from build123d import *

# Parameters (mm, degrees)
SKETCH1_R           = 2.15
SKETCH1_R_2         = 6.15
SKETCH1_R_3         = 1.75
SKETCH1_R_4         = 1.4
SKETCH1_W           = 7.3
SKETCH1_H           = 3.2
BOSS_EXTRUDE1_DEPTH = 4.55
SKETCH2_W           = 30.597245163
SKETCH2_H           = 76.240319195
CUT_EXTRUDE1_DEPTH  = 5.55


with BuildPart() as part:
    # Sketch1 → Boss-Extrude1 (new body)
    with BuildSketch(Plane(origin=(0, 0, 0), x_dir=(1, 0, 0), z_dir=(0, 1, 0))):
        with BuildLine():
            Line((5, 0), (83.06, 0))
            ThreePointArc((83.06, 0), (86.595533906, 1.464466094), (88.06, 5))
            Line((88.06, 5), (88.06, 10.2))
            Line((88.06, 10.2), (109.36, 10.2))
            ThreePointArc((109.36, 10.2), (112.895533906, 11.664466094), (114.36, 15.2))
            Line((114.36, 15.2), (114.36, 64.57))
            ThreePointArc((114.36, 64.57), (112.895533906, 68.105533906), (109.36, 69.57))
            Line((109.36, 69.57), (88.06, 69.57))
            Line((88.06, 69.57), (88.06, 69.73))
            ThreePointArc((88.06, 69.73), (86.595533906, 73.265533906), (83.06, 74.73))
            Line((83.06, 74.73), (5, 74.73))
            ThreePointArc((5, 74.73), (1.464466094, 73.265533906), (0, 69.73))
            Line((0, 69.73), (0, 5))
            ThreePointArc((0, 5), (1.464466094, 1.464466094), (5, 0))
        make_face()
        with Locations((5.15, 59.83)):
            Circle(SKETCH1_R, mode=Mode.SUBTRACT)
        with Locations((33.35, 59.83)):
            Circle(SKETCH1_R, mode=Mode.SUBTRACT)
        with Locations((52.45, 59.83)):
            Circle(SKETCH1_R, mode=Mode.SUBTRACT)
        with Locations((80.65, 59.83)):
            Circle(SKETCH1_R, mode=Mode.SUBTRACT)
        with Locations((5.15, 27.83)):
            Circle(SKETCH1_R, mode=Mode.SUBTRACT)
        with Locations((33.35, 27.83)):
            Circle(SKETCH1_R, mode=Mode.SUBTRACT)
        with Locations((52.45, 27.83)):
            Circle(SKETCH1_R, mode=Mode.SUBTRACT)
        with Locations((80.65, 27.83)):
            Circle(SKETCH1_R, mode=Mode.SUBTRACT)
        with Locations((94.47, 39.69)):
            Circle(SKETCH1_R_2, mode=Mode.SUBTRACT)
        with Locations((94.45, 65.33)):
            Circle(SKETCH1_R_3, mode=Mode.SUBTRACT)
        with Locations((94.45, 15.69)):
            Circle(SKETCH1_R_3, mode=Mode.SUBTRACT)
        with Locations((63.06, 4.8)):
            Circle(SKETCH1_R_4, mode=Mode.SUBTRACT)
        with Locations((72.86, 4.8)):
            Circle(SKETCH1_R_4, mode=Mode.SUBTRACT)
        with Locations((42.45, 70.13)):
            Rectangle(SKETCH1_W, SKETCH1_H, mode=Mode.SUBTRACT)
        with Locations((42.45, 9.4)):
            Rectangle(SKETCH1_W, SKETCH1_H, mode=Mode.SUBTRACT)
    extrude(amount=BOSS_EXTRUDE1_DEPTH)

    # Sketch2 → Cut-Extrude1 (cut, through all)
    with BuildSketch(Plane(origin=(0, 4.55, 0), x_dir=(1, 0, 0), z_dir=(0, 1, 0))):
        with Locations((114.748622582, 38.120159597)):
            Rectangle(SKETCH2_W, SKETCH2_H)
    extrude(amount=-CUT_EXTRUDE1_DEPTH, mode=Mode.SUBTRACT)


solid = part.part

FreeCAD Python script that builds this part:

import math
import FreeCAD as App
import Part
import Sketcher

V = App.Vector

doc = App.newDocument("Part")
body = doc.addObject("PartDesign::Body", "Body")

# Sketch on XZ plane
sketch1 = body.newObject("Sketcher::SketchObject", "Sketch")
sketch1.AttachmentSupport = (doc.getObject("XZ_Plane"), [""])
sketch1.MapMode = "FlatFace"
sketch1.addGeometry([
    Part.LineSegment(V(5, 0, 0), V(83.06, 0, 0)),  # 0
    Part.ArcOfCircle(Part.Circle(V(83.06, -5, 0), V(0, 0, 1), 5), math.radians(0), math.radians(90)),  # 1
    Part.LineSegment(V(88.06, -5, 0), V(88.06, -10.2, 0)),  # 2
    Part.LineSegment(V(88.06, -10.2, 0), V(109.36, -10.2, 0)),  # 3
    Part.ArcOfCircle(Part.Circle(V(109.36, -15.2, 0), V(0, 0, 1), 5), math.radians(0), math.radians(90)),  # 4
    Part.LineSegment(V(114.36, -15.2, 0), V(114.36, -64.57, 0)),  # 5
    Part.ArcOfCircle(Part.Circle(V(109.36, -64.57, 0), V(0, 0, 1), 5), math.radians(-90), math.radians(0)),  # 6
    Part.LineSegment(V(109.36, -69.57, 0), V(88.06, -69.57, 0)),  # 7
    Part.LineSegment(V(88.06, -69.57, 0), V(88.06, -69.73, 0)),  # 8
    Part.ArcOfCircle(Part.Circle(V(83.06, -69.73, 0), V(0, 0, 1), 5), math.radians(-90), math.radians(0)),  # 9
    Part.LineSegment(V(83.06, -74.73, 0), V(5, -74.73, 0)),  # 10
    Part.ArcOfCircle(Part.Circle(V(5, -69.73, 0), V(0, 0, 1), 5), math.radians(180), math.radians(270)),  # 11
    Part.LineSegment(V(0, -69.73, 0), V(0, -5, 0)),  # 12
    Part.ArcOfCircle(Part.Circle(V(5, -5, 0), V(0, 0, 1), 5), math.radians(90), math.radians(180)),  # 13
    Part.LineSegment(V(46.1, -7.8, 0), V(38.8, -7.8, 0)),  # 14
    Part.LineSegment(V(38.8, -7.8, 0), V(38.8, -11, 0)),  # 15
    Part.LineSegment(V(38.8, -11, 0), V(46.1, -11, 0)),  # 16
    Part.LineSegment(V(46.1, -11, 0), V(46.1, -7.8, 0)),  # 17
    Part.Circle(V(5.15, -27.83, 0), V(0, 0, 1), 2.15),  # 18
    Part.Circle(V(33.35, -27.83, 0), V(0, 0, 1), 2.15),  # 19
    Part.Circle(V(63.06, -4.8, 0), V(0, 0, 1), 1.4),  # 20
    Part.Circle(V(72.86, -4.8, 0), V(0, 0, 1), 1.4),  # 21
    Part.Circle(V(94.45, -15.69, 0), V(0, 0, 1), 1.75),  # 22
    Part.Circle(V(52.45, -27.83, 0), V(0, 0, 1), 2.15),  # 23
    Part.Circle(V(80.65, -27.83, 0), V(0, 0, 1), 2.15),  # 24
    Part.Circle(V(5.15, -59.83, 0), V(0, 0, 1), 2.15),  # 25
    Part.Circle(V(33.35, -59.83, 0), V(0, 0, 1), 2.15),  # 26
    Part.LineSegment(V(46.1, -68.53, 0), V(38.8, -68.53, 0)),  # 27
    Part.LineSegment(V(38.8, -68.53, 0), V(38.8, -71.73, 0)),  # 28
    Part.LineSegment(V(38.8, -71.73, 0), V(46.1, -71.73, 0)),  # 29
    Part.LineSegment(V(46.1, -71.73, 0), V(46.1, -68.53, 0)),  # 30
    Part.Circle(V(94.47, -39.69, 0), V(0, 0, 1), 6.15),  # 31
    Part.Circle(V(52.45, -59.83, 0), V(0, 0, 1), 2.15),  # 32
    Part.Circle(V(80.65, -59.83, 0), V(0, 0, 1), 2.15),  # 33
    Part.Circle(V(94.45, -65.33, 0), V(0, 0, 1), 1.75),  # 34
], False)
sketch1.addConstraint([
    Sketcher.Constraint("Tangent", 0, 2, 1, 2),
    Sketcher.Constraint("Tangent", 1, 1, 2, 1),
    Sketcher.Constraint("Coincident", 2, 2, 3, 1),
    Sketcher.Constraint("Tangent", 3, 2, 4, 2),
    Sketcher.Constraint("Tangent", 4, 1, 5, 1),
    Sketcher.Constraint("Tangent", 5, 2, 6, 2),
    Sketcher.Constraint("Tangent", 6, 1, 7, 1),
    Sketcher.Constraint("Coincident", 7, 2, 8, 1),
    Sketcher.Constraint("Tangent", 8, 2, 9, 2),
    Sketcher.Constraint("Tangent", 9, 1, 10, 1),
    Sketcher.Constraint("Tangent", 10, 2, 11, 2),
    Sketcher.Constraint("Tangent", 11, 1, 12, 1),
    Sketcher.Constraint("Tangent", 12, 2, 13, 2),
    Sketcher.Constraint("Tangent", 13, 1, 0, 1),
    Sketcher.Constraint("Coincident", 14, 2, 15, 1),
    Sketcher.Constraint("Coincident", 15, 2, 16, 1),
    Sketcher.Constraint("Coincident", 16, 2, 17, 1),
    Sketcher.Constraint("Coincident", 17, 2, 14, 1),
    Sketcher.Constraint("Coincident", 27, 2, 28, 1),
    Sketcher.Constraint("Coincident", 28, 2, 29, 1),
    Sketcher.Constraint("Coincident", 29, 2, 30, 1),
    Sketcher.Constraint("Coincident", 30, 2, 27, 1),
    Sketcher.Constraint("Horizontal", 0),
    Sketcher.Constraint("Vertical", 2),
    Sketcher.Constraint("Horizontal", 3),
    Sketcher.Constraint("Vertical", 5),
    Sketcher.Constraint("Horizontal", 7),
    Sketcher.Constraint("Vertical", 8),
    Sketcher.Constraint("Horizontal", 10),
    Sketcher.Constraint("Vertical", 12),
    Sketcher.Constraint("Horizontal", 14),
    Sketcher.Constraint("Vertical", 15),
    Sketcher.Constraint("Horizontal", 16),
    Sketcher.Constraint("Vertical", 17),
    Sketcher.Constraint("Horizontal", 27),
    Sketcher.Constraint("Vertical", 28),
    Sketcher.Constraint("Horizontal", 29),
    Sketcher.Constraint("Vertical", 30),
    Sketcher.Constraint("Equal", 1, 4),
    Sketcher.Constraint("Equal", 4, 6),
    Sketcher.Constraint("Equal", 6, 9),
    Sketcher.Constraint("Equal", 9, 11),
    Sketcher.Constraint("Equal", 11, 13),
    Sketcher.Constraint("Equal", 18, 19),
    Sketcher.Constraint("Equal", 20, 21),
    Sketcher.Constraint("Equal", 19, 23),
    Sketcher.Constraint("Equal", 23, 24),
    Sketcher.Constraint("Equal", 24, 25),
    Sketcher.Constraint("Equal", 25, 26),
    Sketcher.Constraint("Equal", 26, 32),
    Sketcher.Constraint("Equal", 32, 33),
    Sketcher.Constraint("Equal", 22, 34),
    Sketcher.Constraint("PointOnObject", 0, 2, -1),
    Sketcher.Constraint("PointOnObject", 11, 1, -2),
    Sketcher.Constraint("Horizontal", 18, 3, 19, 3),
    Sketcher.Constraint("Horizontal", 20, 3, 21, 3),
    Sketcher.Constraint("Horizontal", 19, 3, 23, 3),
    Sketcher.Constraint("Horizontal", 23, 3, 24, 3),
    Sketcher.Constraint("Horizontal", 25, 3, 26, 3),
    Sketcher.Constraint("Horizontal", 26, 3, 32, 3),
    Sketcher.Constraint("Horizontal", 32, 3, 33, 3),
    Sketcher.Constraint("Vertical", 1, 3, 9, 3),
    Sketcher.Constraint("Vertical", 18, 3, 25, 3),
    Sketcher.Constraint("Vertical", 19, 3, 26, 3),
    Sketcher.Constraint("Vertical", 23, 3, 32, 3),
    Sketcher.Constraint("Vertical", 24, 3, 33, 3),
    Sketcher.Constraint("Vertical", 22, 3, 34, 3),
    Sketcher.Constraint("Vertical", 15, 2, 27, 2),
    Sketcher.Constraint("Vertical", 17, 2, 29, 2),
    Sketcher.Constraint("Equal", 17, 28),
    Sketcher.Constraint("Radius", 1, 5.0),
    Sketcher.Constraint("Diameter", 18, 4.3),
    Sketcher.Constraint("Diameter", 20, 2.8),
    Sketcher.Constraint("Diameter", 22, 3.5),
    Sketcher.Constraint("Diameter", 31, 12.3),
    Sketcher.Constraint("DistanceX", 3, 1, 3, 2, 21.3),
    Sketcher.Constraint("DistanceX", 14, 2, 14, 1, 7.3),
    Sketcher.Constraint("DistanceY", 2, 2, 2, 1, 5.2),
    Sketcher.Constraint("DistanceY", 15, 2, 15, 1, 3.2),
    Sketcher.Constraint("DistanceY", 15, 2, -1, 1, 11.0),
    Sketcher.Constraint("DistanceX", 20, 3, 1, 3, 20.0),
    Sketcher.Constraint("DistanceX", 23, 3, 22, 3, 42.0),
    Sketcher.Constraint("DistanceY", 25, 3, 18, 3, 32.0),
    Sketcher.Constraint("DistanceY", 31, 3, 22, 3, 24.0),
    Sketcher.Constraint("DistanceY", 14, 2, 20, 3, 3.0),
    Sketcher.Constraint("DistanceY", 28, 2, 11, 3, 2.0),
    Sketcher.Constraint("DistanceX", 0, 1, 0, 2, 78.06),
    Sketcher.Constraint("DistanceY", 5, 2, 5, 1, 49.37),
    Sketcher.Constraint("DistanceY", 8, 2, 8, 1, 0.16),
    Sketcher.Constraint("DistanceX", -1, 1, 14, 2, 38.8),
    Sketcher.Constraint("DistanceY", 11, 3, 18, 3, 41.9),
    Sketcher.Constraint("DistanceX", 18, 3, 19, 3, 28.2),
    Sketcher.Constraint("DistanceX", 20, 3, 21, 3, 9.8),
    Sketcher.Constraint("DistanceX", 19, 3, 23, 3, 19.1),
    Sketcher.Constraint("DistanceX", 24, 3, 22, 3, 13.8),
    Sketcher.Constraint("DistanceY", 9, 3, 34, 3, 4.4),
    Sketcher.Constraint("DistanceX", -1, 1, 18, 3, 5.15),
    Sketcher.Constraint("DistanceY", 22, 3, -1, 1, 15.69),
    Sketcher.Constraint("DistanceX", -1, 1, 31, 3, 94.47),
])
pad1 = body.newObject("PartDesign::Pad", "Pad")
pad1.Profile = sketch1
pad1.Length = 4.55
pad1.Reversed = True

# Sketch on XZ plane
sketch2 = body.newObject("Sketcher::SketchObject", "Sketch001")
sketch2.AttachmentSupport = (doc.getObject("XZ_Plane"), [""])
sketch2.MapMode = "FlatFace"
sketch2.AttachmentOffset = App.Placement(V(0, 0, -4.55), App.Rotation())
sketch2.addGeometry([
    Part.LineSegment(V(99, -76, 0), V(99, 0, 0)),
    Part.LineSegment(V(99, 0, 0), V(130, 0, 0)),
    Part.LineSegment(V(130, 0, 0), V(130, -76, 0)),
    Part.LineSegment(V(130, -76, 0), V(99, -76, 0)),
], False)
sketch2.addConstraint([
    Sketcher.Constraint("Coincident", 0, 2, 1, 1),
    Sketcher.Constraint("Coincident", 1, 2, 2, 1),
    Sketcher.Constraint("Coincident", 2, 2, 3, 1),
    Sketcher.Constraint("Coincident", 3, 2, 0, 1),
    Sketcher.Constraint("Vertical", 0),
    Sketcher.Constraint("Horizontal", 1),
    Sketcher.Constraint("Vertical", 2),
    Sketcher.Constraint("Horizontal", 3),
    Sketcher.Constraint("PointOnObject", 0, 2, -1),
    Sketcher.Constraint("DistanceX", -1, 1, 0, 2, 99.45),
    Sketcher.Constraint("DistanceY", 0, 1, 0, 2, 76.240319),
    Sketcher.Constraint("DistanceX", 1, 1, 1, 2, 30.597245),
])
pocket1 = body.newObject("PartDesign::Pocket", "Pocket")
pocket1.Profile = sketch2
pocket1.Type = "ThroughAll"
pocket1.Reversed = True

doc.recompute()
